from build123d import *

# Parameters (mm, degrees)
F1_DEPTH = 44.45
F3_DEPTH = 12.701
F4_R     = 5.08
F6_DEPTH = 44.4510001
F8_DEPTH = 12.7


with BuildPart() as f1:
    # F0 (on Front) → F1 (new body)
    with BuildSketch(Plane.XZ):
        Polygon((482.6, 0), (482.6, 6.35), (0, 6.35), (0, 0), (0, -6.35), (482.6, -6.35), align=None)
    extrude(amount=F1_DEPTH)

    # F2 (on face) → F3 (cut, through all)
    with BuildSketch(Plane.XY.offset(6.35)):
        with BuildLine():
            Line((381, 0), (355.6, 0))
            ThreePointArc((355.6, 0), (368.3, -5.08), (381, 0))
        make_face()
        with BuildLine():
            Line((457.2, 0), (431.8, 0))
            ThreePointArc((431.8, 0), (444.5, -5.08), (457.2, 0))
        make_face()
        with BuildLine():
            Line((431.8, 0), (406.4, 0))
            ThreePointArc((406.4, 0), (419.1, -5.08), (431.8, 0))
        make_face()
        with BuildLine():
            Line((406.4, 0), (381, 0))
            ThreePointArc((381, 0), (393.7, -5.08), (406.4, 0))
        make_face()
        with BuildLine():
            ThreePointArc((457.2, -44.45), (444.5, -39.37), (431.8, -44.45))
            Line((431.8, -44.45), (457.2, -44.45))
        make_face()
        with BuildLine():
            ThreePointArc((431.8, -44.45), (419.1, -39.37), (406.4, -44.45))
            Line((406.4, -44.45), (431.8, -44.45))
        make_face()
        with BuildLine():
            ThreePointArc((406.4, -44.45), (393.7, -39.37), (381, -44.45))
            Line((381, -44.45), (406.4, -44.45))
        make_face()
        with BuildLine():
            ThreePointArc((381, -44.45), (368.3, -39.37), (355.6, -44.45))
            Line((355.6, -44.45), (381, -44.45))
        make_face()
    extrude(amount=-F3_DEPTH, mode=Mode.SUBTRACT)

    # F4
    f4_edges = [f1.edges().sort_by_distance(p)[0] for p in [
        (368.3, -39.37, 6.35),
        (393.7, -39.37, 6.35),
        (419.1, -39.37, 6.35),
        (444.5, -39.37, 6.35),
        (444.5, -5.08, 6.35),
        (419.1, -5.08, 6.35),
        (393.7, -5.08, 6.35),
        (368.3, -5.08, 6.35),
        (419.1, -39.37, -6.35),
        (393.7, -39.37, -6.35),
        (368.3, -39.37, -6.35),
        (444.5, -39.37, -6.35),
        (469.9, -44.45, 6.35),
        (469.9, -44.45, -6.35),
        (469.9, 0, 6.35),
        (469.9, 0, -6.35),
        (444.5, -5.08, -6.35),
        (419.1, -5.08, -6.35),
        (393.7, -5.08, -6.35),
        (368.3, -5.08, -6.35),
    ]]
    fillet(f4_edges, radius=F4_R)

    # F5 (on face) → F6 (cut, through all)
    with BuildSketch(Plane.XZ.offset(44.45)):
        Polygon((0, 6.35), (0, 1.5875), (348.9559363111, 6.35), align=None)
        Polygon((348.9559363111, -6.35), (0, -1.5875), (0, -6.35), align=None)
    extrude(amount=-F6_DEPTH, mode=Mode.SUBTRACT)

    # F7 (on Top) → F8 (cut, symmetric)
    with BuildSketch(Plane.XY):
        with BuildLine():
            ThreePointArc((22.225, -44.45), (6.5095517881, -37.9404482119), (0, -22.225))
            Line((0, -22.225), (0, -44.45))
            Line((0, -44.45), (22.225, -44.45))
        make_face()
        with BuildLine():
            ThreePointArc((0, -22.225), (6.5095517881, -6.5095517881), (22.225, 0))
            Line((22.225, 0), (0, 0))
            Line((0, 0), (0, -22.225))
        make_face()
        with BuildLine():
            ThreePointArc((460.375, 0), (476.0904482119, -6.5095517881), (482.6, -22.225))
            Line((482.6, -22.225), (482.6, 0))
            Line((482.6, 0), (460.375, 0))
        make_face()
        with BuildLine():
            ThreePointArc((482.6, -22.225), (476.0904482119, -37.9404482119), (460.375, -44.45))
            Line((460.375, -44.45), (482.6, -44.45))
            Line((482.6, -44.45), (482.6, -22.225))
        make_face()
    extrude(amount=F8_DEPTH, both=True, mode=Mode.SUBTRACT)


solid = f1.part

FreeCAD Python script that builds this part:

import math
import FreeCAD as App
import Part
import Sketcher

V = App.Vector
Q = App.Units.Quantity


def edges_at(feature, points):
    """Names of the edges that pass closest to the given points."""
    edges = feature.Shape.Edges
    near = lambda p: min(range(len(edges)), key=lambda i: edges[i].distToShape(Part.Vertex(*p))[0])
    return sorted({f"Edge{near(p) + 1}" for p in points})


def add_polygon(sketch, points):
    """Adds a closed chain of lines whose ends are joined by coincident constraints."""
    first, n = sketch.GeometryCount, len(points)
    for a, b in zip(points, points[1:] + points[:1]):
        sketch.addGeometry(Part.LineSegment(App.Vector(*a, 0), App.Vector(*b, 0)), False)
    for i in range(n):
        sketch.addConstraint(Sketcher.Constraint("Coincident", first + i, 2, first + (i + 1) % n, 1))

doc = App.newDocument("Part")
params = doc.addObject("Spreadsheet::Sheet", "Params")
for row, (alias, value) in enumerate([
    ("sketch1_width", "19 in"),
    ("sketch1_height", "0.5 in"),
    ("pad1_length", "1.75 in"),
    ("sketch2_width", "1 in"),
    ("sketch2_radius", "0.725 in"),
    ("fillet_radius", "0.2 in"),
    ("sketch3_height", "0.1875 in"),
    ("sketch4_radius", "0.875 in"),
    ("pocket3_length", "1 in"),
], start=1):
    params.set(f"A{row}", alias)
    params.set(f"B{row}", "=" + value)
    params.setAlias(f"B{row}", alias)

body = doc.addObject("PartDesign::Body", "Body")

# Sketch on XZ plane
sketch1 = body.newObject("Sketcher::SketchObject", "Sketch")
sketch1.AttachmentSupport = (doc.getObject("XZ_Plane"), [""])
sketch1.MapMode = "FlatFace"
add_polygon(sketch1, [(482.6, 6.35), (0, 6.35), (0, -6.35), (482.6, -6.35)])  # lines 0-3
sketch1.addConstraint([
    Sketcher.Constraint("Horizontal", 0),
    Sketcher.Constraint("Vertical", 1),
    Sketcher.Constraint("Horizontal", 2),
    Sketcher.Constraint("Vertical", 3),
    Sketcher.Constraint("Symmetric", 0, 2, 1, 2, -1, 1),
    Sketcher.Constraint("DistanceX", 0, 2, 0, 1, Q("19 in")),
    Sketcher.Constraint("DistanceY", 1, 2, 1, 1, Q("0.5 in")),
])
sketch1.setExpression("Constraints[9]", "Params.sketch1_width")
sketch1.setExpression("Constraints[10]", "Params.sketch1_height")
pad1 = body.newObject("PartDesign::Pad", "Pad")
pad1.Profile = sketch1
pad1.setExpression("Length", "Params.pad1_length")

# Sketch on XY plane
sketch2 = body.newObject("Sketcher::SketchObject", "Sketch001")
sketch2.AttachmentSupport = (doc.getObject("XY_Plane"), [""])
sketch2.MapMode = "FlatFace"
sketch2.AttachmentOffset = App.Placement(V(0, 0, 0.25 * 25.4), App.Rotation())
sketch2.addGeometry([
    Part.LineSegment(V(381, 0, 0), V(355.6, 0, 0)),  # 0
    Part.ArcOfCircle(Part.Circle(V(368.3, 13.335, 0), V(0, 0, 1), 18.415), math.radians(-133.602819), math.radians(-46.397181)),  # 1
    Part.LineSegment(V(457.2, 0, 0), V(431.8, 0, 0)),  # 2
    Part.ArcOfCircle(Part.Circle(V(444.5, 13.335, 0), V(0, 0, 1), 18.415), math.radians(-133.602819), math.radians(-46.397181)),  # 3
    Part.LineSegment(V(431.8, 0, 0), V(406.4, 0, 0)),  # 4
    Part.ArcOfCircle(Part.Circle(V(419.1, 13.335, 0), V(0, 0, 1), 18.415), math.radians(-133.602819), math.radians(-46.397181)),  # 5
    Part.LineSegment(V(406.4, 0, 0), V(381, 0, 0)),  # 6
    Part.ArcOfCircle(Part.Circle(V(393.7, 13.335, 0), V(0, 0, 1), 18.415), math.radians(-133.602819), math.radians(-46.397181)),  # 7
    Part.ArcOfCircle(Part.Circle(V(444.5, -57.785, 0), V(0, 0, 1), 18.415), math.radians(46.397181), math.radians(133.602819)),  # 8
    Part.LineSegment(V(431.8, -44.45, 0), V(457.2, -44.45, 0)),  # 9
    Part.ArcOfCircle(Part.Circle(V(419.1, -57.785, 0), V(0, 0, 1), 18.415), math.radians(46.397181), math.radians(133.602819)),  # 10
    Part.LineSegment(V(406.4, -44.45, 0), V(431.8, -44.45, 0)),  # 11
    Part.ArcOfCircle(Part.Circle(V(393.7, -57.785, 0), V(0, 0, 1), 18.415), math.radians(46.397181), math.radians(133.602819)),  # 12
    Part.LineSegment(V(381, -44.45, 0), V(406.4, -44.45, 0)),  # 13
    Part.ArcOfCircle(Part.Circle(V(368.3, -57.785, 0), V(0, 0, 1), 18.415), math.radians(46.397181), math.radians(133.602819)),  # 14
    Part.LineSegment(V(355.6, -44.45, 0), V(381, -44.45, 0)),  # 15
], False)
sketch2.addConstraint([
    Sketcher.Constraint("Coincident", 0, 1, 1, 2),
    Sketcher.Constraint("Coincident", 1, 1, 0, 2),
    Sketcher.Constraint("Coincident", 2, 1, 3, 2),
    Sketcher.Constraint("Coincident", 3, 1, 2, 2),
    Sketcher.Constraint("Coincident", 4, 1, 5, 2),
    Sketcher.Constraint("Coincident", 5, 1, 4, 2),
    Sketcher.Constraint("Coincident", 6, 1, 7, 2),
    Sketcher.Constraint("Coincident", 7, 1, 6, 2),
    Sketcher.Constraint("Coincident", 8, 1, 9, 2),
    Sketcher.Constraint("Coincident", 9, 1, 8, 2),
    Sketcher.Constraint("Coincident", 10, 1, 11, 2),
    Sketcher.Constraint("Coincident", 11, 1, 10, 2),
    Sketcher.Constraint("Coincident", 12, 1, 13, 2),
    Sketcher.Constraint("Coincident", 13, 1, 12, 2),
    Sketcher.Constraint("Coincident", 14, 1, 15, 2),
    Sketcher.Constraint("Coincident", 15, 1, 14, 2),
    Sketcher.Constraint("Horizontal", 0),
    Sketcher.Constraint("Horizontal", 2),
    Sketcher.Constraint("Horizontal", 4),
    Sketcher.Constraint("Horizontal", 6),
    Sketcher.Constraint("Horizontal", 9),
    Sketcher.Constraint("Horizontal", 11),
    Sketcher.Constraint("Horizontal", 13),
    Sketcher.Constraint("Horizontal", 15),
    Sketcher.Constraint("Coincident", 4, 1, 3, 1),
    Sketcher.Constraint("Coincident", 6, 1, 5, 1),
    Sketcher.Constraint("Coincident", 7, 1, 0, 1),
    Sketcher.Constraint("Coincident", 10, 1, 9, 1),
    Sketcher.Constraint("Coincident", 12, 1, 11, 1),
    Sketcher.Constraint("Coincident", 14, 1, 13, 1),
    Sketcher.Constraint("Equal", 1, 3),
    Sketcher.Constraint("Equal", 3, 5),
    Sketcher.Constraint("Equal", 5, 7),
    Sketcher.Constraint("Equal", 7, 8),
    Sketcher.Constraint("Equal", 8, 10),
    Sketcher.Constraint("Equal", 10, 12),
    Sketcher.Constraint("Equal", 12, 14),
    Sketcher.Constraint("PointOnObject", 0, 1, -1),
    Sketcher.Constraint("Horizontal", 1, 3, 3, 3),
    Sketcher.Constraint("Horizontal", 3, 3, 5, 3),
    Sketcher.Constraint("Horizontal", 5, 3, 7, 3),
    Sketcher.Constraint("Horizontal", 8, 3, 10, 3),
    Sketcher.Constraint("Horizontal", 10, 3, 12, 3),
    Sketcher.Constraint("Horizontal", 12, 3, 14, 3),
    Sketcher.Constraint("Vertical", 3, 3, 8, 3),
    Sketcher.Constraint("Vertical", 5, 3, 10, 3),
    Sketcher.Constraint("DistanceX", 0, 2, 0, 1, Q("1 in")),
    Sketcher.Constraint("DistanceX", -1, 1, 0, 1, Q("15 in")),
    Sketcher.Constraint("Radius", 1, Q("0.725 in")),
    Sketcher.Constraint("DistanceY", 8, 3, 3, 3, Q("2.8 in")),
])
sketch2.setExpression("Constraints[46]", "Params.sketch2_width")
sketch2.setExpression("Constraints[48]", "Params.sketch2_radius")
pocket1 = body.newObject("PartDesign::Pocket", "Pocket")
pocket1.Profile = sketch2
pocket1.Type = "ThroughAll"
doc.recompute()

fillet = body.newObject("PartDesign::Fillet", "Fillet")
fillet.Base = (pocket1, edges_at(pocket1, [
    (368.3, -39.37, 6.35),
    (393.7, -39.37, 6.35),
    (419.1, -39.37, 6.35),
    (444.5, -39.37, 6.35),
    (444.5, -5.08, 6.35),
    (419.1, -5.08, 6.35),
    (393.7, -5.08, 6.35),
    (368.3, -5.08, 6.35),
    (419.1, -39.37, -6.35),
    (393.7, -39.37, -6.35),
    (368.3, -39.37, -6.35),
    (444.5, -39.37, -6.35),
    (469.9, -44.45, 6.35),
    (469.9, -44.45, -6.35),
    (469.9, 0, 6.35),
    (469.9, 0, -6.35),
    (444.5, -5.08, -6.35),
    (419.1, -5.08, -6.35),
    (393.7, -5.08, -6.35),
    (368.3, -5.08, -6.35),
]))
fillet.setExpression("Radius", "Params.fillet_radius")

# Sketch on XZ plane
sketch3 = body.newObject("Sketcher::SketchObject", "Sketch002")
sketch3.AttachmentSupport = (doc.getObject("XZ_Plane"), [""])
sketch3.MapMode = "FlatFace"
sketch3.AttachmentOffset = App.Placement(V(0, 0, 1.75 * 25.4), App.Rotation())
add_polygon(sketch3, [(0, 6.35), (0, 1.5875), (348.955936, 6.35)])  # lines 0-2
add_polygon(sketch3, [(348.955936, -6.35), (0, -1.5875), (0, -6.35)])  # lines 3-5
sketch3.addConstraint([
    Sketcher.Constraint("Vertical", 0),
    Sketcher.Constraint("Horizontal", 2),
    Sketcher.Constraint("Vertical", 4),
    Sketcher.Constraint("Horizontal", 5),
    Sketcher.Constraint("Symmetric", 0, 2, 3, 2, -1, 1),
    Sketcher.Constraint("Symmetric", 2, 2, 4, 2, -1),
    Sketcher.Constraint("Vertical", 1, 2, 5, 2),
    Sketcher.Constraint("DistanceY", 4, 2, 2, 2, Q("0.5 in")),
    Sketcher.Constraint("DistanceY", 0, 2, 0, 1, Q("0.1875 in")),
    Sketcher.Constraint("DistanceX", 2, 2, 2, 1, 348.955936),
])
sketch3.setExpression("Constraints[14]", "Params.sketch3_height")
pocket2 = body.newObject("PartDesign::Pocket", "Pocket001")
pocket2.Profile = sketch3
pocket2.Type = "ThroughAll"

# Sketch on XY plane
sketch4 = body.newObject("Sketcher::SketchObject", "Sketch003")
sketch4.AttachmentSupport = (doc.getObject("XY_Plane"), [""])
sketch4.MapMode = "FlatFace"
sketch4.addGeometry([
    Part.ArcOfCircle(Part.Circle(V(22.225, -22.225, 0), V(0, 0, 1), 22.225), math.radians(180), math.radians(270)),  # 0
    Part.LineSegment(V(0, -22.225, 0), V(0, -44.45, 0)),  # 1
    Part.LineSegment(V(0, -44.45, 0), V(22.225, -44.45, 0)),  # 2
    Part.ArcOfCircle(Part.Circle(V(22.225, -22.225, 0), V(0, 0, 1), 22.225), math.radians(90), math.radians(180)),  # 3
    Part.LineSegment(V(22.225, 0, 0), V(0, 0, 0)),  # 4
    Part.LineSegment(V(0, 0, 0), V(0, -22.225, 0)),  # 5
    Part.ArcOfCircle(Part.Circle(V(460.375, -22.225, 0), V(0, 0, 1), 22.225), math.radians(0), math.radians(90)),  # 6
    Part.LineSegment(V(482.6, -22.225, 0), V(482.6, 0, 0)),  # 7
    Part.LineSegment(V(482.6, 0, 0), V(460.375, 0, 0)),  # 8
    Part.ArcOfCircle(Part.Circle(V(460.375, -22.225, 0), V(0, 0, 1), 22.225), math.radians(-90), math.radians(0)),  # 9
    Part.LineSegment(V(460.375, -44.45, 0), V(482.6, -44.45, 0)),  # 10
    Part.LineSegment(V(482.6, -44.45, 0), V(482.6, -22.225, 0)),  # 11
], False)
sketch4.addConstraint([
    Sketcher.Constraint("Tangent", 0, 1, 1, 1),
    Sketcher.Constraint("Coincident", 1, 2, 2, 1),
    Sketcher.Constraint("Tangent", 2, 2, 0, 2),
    Sketcher.Constraint("Tangent", 3, 1, 4, 1),
    Sketcher.Constraint("Coincident", 4, 2, 5, 1),
    Sketcher.Constraint("Tangent", 5, 2, 3, 2),
    Sketcher.Constraint("Tangent", 6, 1, 7, 1),
    Sketcher.Constraint("Coincident", 7, 2, 8, 1),
    Sketcher.Constraint("Tangent", 8, 2, 6, 2),
    Sketcher.Constraint("Tangent", 9, 1, 10, 1),
    Sketcher.Constraint("Coincident", 10, 2, 11, 1),
    Sketcher.Constraint("Tangent", 11, 2, 9, 2),
    Sketcher.Constraint("Vertical", 1),
    Sketcher.Constraint("Horizontal", 2),
    Sketcher.Constraint("Horizontal", 4),
    Sketcher.Constraint("Vertical", 5),
    Sketcher.Constraint("Vertical", 7),
    Sketcher.Constraint("Horizontal", 8),
    Sketcher.Constraint("Horizontal", 10),
    Sketcher.Constraint("Vertical", 11),
    Sketcher.Constraint("Coincident", 4, 2, -1, 1),
    Sketcher.Constraint("Coincident", 3, 3, 0, 3),
    Sketcher.Constraint("Coincident", 9, 3, 6, 3),
    Sketcher.Constraint("Equal", 0, 3),
    Sketcher.Constraint("Equal", 3, 6),
    Sketcher.Constraint("Equal", 6, 9),
    Sketcher.Constraint("PointOnObject", 7, 2, -1),
    Sketcher.Constraint("DistanceX", -1, 1, 6, 1, Q("19 in")),
    Sketcher.Constraint("Radius", 0, Q("0.875 in")),
])
sketch4.setExpression("Constraints[28]", "Params.sketch4_radius")
pocket3 = body.newObject("PartDesign::Pocket", "Pocket002")
pocket3.Profile = sketch4
pocket3.setExpression("Length", "Params.pocket3_length")
pocket3.Midplane = True

doc.recompute()
